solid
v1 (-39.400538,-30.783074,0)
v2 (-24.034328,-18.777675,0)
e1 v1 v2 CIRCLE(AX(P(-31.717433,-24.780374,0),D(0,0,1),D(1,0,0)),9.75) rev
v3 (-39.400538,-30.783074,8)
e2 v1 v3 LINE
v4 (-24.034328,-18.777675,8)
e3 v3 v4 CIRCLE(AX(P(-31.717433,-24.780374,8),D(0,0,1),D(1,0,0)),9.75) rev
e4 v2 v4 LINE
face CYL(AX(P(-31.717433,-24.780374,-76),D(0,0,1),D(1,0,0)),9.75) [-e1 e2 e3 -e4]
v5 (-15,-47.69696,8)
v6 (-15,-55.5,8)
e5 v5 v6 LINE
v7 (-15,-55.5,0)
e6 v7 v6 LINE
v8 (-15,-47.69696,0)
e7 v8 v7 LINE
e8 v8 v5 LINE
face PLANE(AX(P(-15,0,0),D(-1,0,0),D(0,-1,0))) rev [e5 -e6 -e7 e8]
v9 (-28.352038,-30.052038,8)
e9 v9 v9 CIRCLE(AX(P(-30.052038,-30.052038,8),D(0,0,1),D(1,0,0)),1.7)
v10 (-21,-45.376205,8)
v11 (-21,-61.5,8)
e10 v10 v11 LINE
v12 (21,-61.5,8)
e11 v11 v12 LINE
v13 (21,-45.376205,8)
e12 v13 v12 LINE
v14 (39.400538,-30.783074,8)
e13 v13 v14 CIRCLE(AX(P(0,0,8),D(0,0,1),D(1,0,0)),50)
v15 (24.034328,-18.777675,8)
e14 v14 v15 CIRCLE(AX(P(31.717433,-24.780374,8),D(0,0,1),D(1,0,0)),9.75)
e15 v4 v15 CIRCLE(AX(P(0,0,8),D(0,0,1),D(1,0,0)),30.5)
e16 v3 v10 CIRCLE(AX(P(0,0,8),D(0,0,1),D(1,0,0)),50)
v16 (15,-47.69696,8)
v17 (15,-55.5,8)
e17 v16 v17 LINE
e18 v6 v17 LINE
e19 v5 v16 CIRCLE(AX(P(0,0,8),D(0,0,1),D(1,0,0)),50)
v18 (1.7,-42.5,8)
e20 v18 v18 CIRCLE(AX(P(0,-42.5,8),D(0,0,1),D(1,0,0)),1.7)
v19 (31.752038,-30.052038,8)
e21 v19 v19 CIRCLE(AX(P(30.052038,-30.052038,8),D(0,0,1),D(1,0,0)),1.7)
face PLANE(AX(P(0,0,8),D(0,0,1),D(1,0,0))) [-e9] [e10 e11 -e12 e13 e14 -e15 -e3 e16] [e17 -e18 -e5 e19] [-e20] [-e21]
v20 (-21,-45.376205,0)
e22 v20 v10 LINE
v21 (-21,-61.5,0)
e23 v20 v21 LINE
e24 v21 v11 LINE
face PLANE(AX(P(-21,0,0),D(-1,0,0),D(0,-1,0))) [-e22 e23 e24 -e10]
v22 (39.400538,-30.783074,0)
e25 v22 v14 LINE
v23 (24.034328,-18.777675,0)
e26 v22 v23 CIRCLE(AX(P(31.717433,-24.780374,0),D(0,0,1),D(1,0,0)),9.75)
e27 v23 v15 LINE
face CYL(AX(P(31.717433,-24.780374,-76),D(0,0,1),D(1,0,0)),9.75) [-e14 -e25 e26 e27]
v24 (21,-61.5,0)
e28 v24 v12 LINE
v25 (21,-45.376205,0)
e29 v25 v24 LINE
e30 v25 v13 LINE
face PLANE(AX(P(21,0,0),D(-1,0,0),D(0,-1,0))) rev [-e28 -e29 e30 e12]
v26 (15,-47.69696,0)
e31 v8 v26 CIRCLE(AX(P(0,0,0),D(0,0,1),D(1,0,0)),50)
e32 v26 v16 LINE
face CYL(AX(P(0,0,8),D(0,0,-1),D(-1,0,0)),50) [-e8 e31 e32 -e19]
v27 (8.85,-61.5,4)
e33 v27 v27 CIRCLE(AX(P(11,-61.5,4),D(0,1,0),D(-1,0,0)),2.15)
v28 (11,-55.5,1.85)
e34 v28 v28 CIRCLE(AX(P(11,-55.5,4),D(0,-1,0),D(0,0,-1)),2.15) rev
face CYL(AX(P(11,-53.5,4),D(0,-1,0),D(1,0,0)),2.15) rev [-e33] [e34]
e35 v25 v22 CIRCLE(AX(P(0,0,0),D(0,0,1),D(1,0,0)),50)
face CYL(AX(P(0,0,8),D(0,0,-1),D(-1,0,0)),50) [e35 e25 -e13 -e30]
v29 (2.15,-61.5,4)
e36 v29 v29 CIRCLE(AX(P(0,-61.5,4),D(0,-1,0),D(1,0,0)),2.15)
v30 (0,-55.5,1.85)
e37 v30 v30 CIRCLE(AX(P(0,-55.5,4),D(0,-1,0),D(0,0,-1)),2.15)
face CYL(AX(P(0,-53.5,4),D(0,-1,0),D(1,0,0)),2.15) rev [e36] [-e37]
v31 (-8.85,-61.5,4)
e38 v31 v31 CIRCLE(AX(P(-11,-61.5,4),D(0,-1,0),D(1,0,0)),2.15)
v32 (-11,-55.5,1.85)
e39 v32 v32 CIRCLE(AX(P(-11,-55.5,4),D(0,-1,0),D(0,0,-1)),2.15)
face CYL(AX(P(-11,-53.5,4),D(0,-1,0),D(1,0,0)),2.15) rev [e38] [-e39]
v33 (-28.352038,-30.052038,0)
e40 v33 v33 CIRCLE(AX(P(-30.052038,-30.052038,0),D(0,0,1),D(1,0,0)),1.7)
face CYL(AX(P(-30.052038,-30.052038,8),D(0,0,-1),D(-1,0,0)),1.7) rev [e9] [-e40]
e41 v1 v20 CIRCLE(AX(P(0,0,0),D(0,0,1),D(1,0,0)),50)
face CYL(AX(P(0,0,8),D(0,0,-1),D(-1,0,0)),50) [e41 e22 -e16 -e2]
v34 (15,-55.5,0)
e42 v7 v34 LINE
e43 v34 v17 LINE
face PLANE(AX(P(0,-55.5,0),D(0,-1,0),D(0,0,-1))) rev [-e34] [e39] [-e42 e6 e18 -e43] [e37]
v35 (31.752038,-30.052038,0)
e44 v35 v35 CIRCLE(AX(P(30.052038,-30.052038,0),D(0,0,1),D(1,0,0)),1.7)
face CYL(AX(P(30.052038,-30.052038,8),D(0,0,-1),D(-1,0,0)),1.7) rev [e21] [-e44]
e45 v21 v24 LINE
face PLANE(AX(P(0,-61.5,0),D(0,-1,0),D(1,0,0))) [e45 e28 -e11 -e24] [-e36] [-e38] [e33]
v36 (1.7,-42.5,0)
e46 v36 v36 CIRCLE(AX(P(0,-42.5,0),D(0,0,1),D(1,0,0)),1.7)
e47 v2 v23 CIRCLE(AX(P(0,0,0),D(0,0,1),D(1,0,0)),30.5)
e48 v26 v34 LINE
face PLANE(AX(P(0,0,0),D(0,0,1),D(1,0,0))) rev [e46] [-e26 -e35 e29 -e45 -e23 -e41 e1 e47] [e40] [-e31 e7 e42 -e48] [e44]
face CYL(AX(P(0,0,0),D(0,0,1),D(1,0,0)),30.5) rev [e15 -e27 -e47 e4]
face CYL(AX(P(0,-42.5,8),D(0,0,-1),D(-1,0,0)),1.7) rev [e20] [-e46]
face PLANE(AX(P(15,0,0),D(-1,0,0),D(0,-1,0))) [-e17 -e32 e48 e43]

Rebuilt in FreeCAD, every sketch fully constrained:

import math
import FreeCAD as App
import Part
import Sketcher

V = App.Vector
Q = App.Units.Quantity

doc = App.newDocument("Part")
body = doc.addObject("PartDesign::Body", "Body")

# Sketch on XY plane
sketch1 = doc.addObject("Sketcher::SketchObject", "Sketch")
body.addObject(sketch1)
sketch1.AttachmentSupport = (doc.XY_Plane, [""])
sketch1.MapMode = "FlatFace"
sketch1.addGeometry([
    Part.Circle(V(0, 0, 0), V(0, 0, 1), 50),  # 0
    Part.Circle(V(-30.052038, -30.052038, 0), V(0, 0, 1), 1.7),  # 1
    Part.Circle(V(0, -42.5, 0), V(0, 0, 1), 1.7),  # 2
    Part.Circle(V(30.052038, -30.052038, 0), V(0, 0, 1), 1.7),  # 3
    Part.Circle(V(-42.5, 0, 0), V(0, 0, 1), 1.7),  # 4
    Part.Circle(V(-30.052038, 30.052038, 0), V(0, 0, 1), 1.7),  # 5
    Part.Circle(V(42.5, 0, 0), V(0, 0, 1), 1.7),  # 6
    Part.Circle(V(0, 42.5, 0), V(0, 0, 1), 1.7),  # 7
    Part.Circle(V(30.052038, 30.052038, 0), V(0, 0, 1), 1.7),  # 8
], False)
sketch1.addConstraint([
    Sketcher.Constraint("Coincident", 0, 3, -1, 1),
    Sketcher.Constraint("Equal", 1, 2),
    Sketcher.Constraint("Equal", 2, 3),
    Sketcher.Constraint("Equal", 3, 4),
    Sketcher.Constraint("Equal", 4, 5),
    Sketcher.Constraint("Equal", 5, 6),
    Sketcher.Constraint("Equal", 6, 7),
    Sketcher.Constraint("Equal", 7, 8),
    Sketcher.Constraint("Symmetric", 3, 3, 5, 3, -1, 1),
    Sketcher.Constraint("Symmetric", 4, 3, 6, 3, -1, 1),
    Sketcher.Constraint("Symmetric", 2, 3, 7, 3, -1, 1),
    Sketcher.Constraint("Symmetric", 1, 3, 8, 3, -1, 1),
    Sketcher.Constraint("Symmetric", 1, 3, 3, 3, -2),
    Sketcher.Constraint("PointOnObject", 2, 3, -2),
    Sketcher.Constraint("PointOnObject", 4, 3, -1),
    Sketcher.Constraint("Diameter", 0, Q("100 mm")),
    Sketcher.Constraint("Diameter", 1, Q("3.4 mm")),
    Sketcher.Constraint("DistanceY", 2, 3, -1, 1, Q("42.5 mm")),
    Sketcher.Constraint("DistanceX", 4, 3, -1, 1, Q("42.5 mm")),
    Sketcher.Constraint("DistanceX", 1, 3, -1, 1, Q("30.052038 mm")),
    Sketcher.Constraint("DistanceY", 1, 3, -1, 1, Q("30.052038 mm")),
])
pad1 = doc.addObject("PartDesign::Pad", "Pad")
body.addObject(pad1)
pad1.Profile = sketch1
pad1.Length = 8

# Sketch on XY plane
sketch2 = doc.addObject("Sketcher::SketchObject", "Sketch001")
body.addObject(sketch2)
sketch2.AttachmentSupport = (doc.XY_Plane, [""])
sketch2.MapMode = "FlatFace"
sketch2.AttachmentOffset = App.Placement(V(0, 0, 8), App.Rotation())
sketch2.addGeometry(Part.Circle(V(0, 0, 0), V(0, 0, 1), 30.5), False)
sketch2.addConstraint([
    Sketcher.Constraint("Coincident", 0, 3, -1, 1),
    Sketcher.Constraint("Diameter", 0, Q("61 mm")),
])
pocket1 = doc.addObject("PartDesign::Pocket", "Pocket")
body.addObject(pocket1)
pocket1.Profile = sketch2
pocket1.Length = 8

# Sketch on XY plane
sketch3 = doc.addObject("Sketcher::SketchObject", "Sketch002")
body.addObject(sketch3)
sketch3.AttachmentSupport = (doc.XY_Plane, [""])
sketch3.MapMode = "FlatFace"
sketch3.AttachmentOffset = App.Placement(V(0, 0, 8), App.Rotation())
sketch3.addGeometry([
    Part.ArcOfCircle(Part.Circle(V(-31.717433, -24.780374, 0), V(0, 0, 1), 9.75), math.radians(38.000001), math.radians(218.000005)),
    Part.ArcOfCircle(Part.Circle(V(0, 0, 0), V(0, 0, 1), 30.5), math.radians(-38), math.radians(218)),
    Part.ArcOfCircle(Part.Circle(V(31.717433, -24.780374, 0), V(0, 0, 1), 9.75), math.radians(-38.000005), math.radians(142)),
    Part.ArcOfCircle(Part.Circle(V(0, 0, 0), V(0, 0, 1), 50), math.radians(-38.000001), math.radians(218.000001)),
], False)
sketch3.addConstraint([
    Sketcher.Constraint("Tangent", 0, 1, 1, 2),
    Sketcher.Constraint("Tangent", 1, 1, 2, 2),
    Sketcher.Constraint("Tangent", 2, 1, 3, 1),
    Sketcher.Constraint("Tangent", 3, 2, 0, 2),
    Sketcher.Constraint("Coincident", 1, 3, -1, 1),
    Sketcher.Constraint("Coincident", 3, 3, -1, 1),
    Sketcher.Constraint("Horizontal", 0, 3, 2, 3),
    Sketcher.Constraint("Radius", 3, Q("50 mm")),
    Sketcher.Constraint("Radius", 1, Q("30.5 mm")),
    Sketcher.Constraint("DistanceY", 0, 3, 0, 1, Q("6.0027 mm")),
])
pocket2 = doc.addObject("PartDesign::Pocket", "Pocket001")
body.addObject(pocket2)
pocket2.Profile = sketch3
pocket2.Length = 84

# Sketch on XY plane
sketch4 = doc.addObject("Sketcher::SketchObject", "Sketch003")
body.addObject(sketch4)
sketch4.AttachmentSupport = (doc.XY_Plane, [""])
sketch4.MapMode = "FlatFace"
sketch4.addGeometry([
    Part.ArcOfCircle(Part.Circle(V(0, 0, 0), V(0, 0, 1), 50), math.radians(-114.834587), math.radians(-107.457603)),  # 0
    Part.LineSegment(V(-21, -45.376205, 0), V(-21, -61.5, 0)),  # 1
    Part.LineSegment(V(-21, -61.5, 0), V(21, -61.5, 0)),  # 2
    Part.LineSegment(V(21, -61.5, 0), V(21, -45.376205, 0)),  # 3
    Part.ArcOfCircle(Part.Circle(V(0, 0, 0), V(0, 0, 1), 50), math.radians(-72.542397), math.radians(-65.165413)),  # 4
    Part.LineSegment(V(15, -47.69696, 0), V(15, -55.5, 0)),  # 5
    Part.LineSegment(V(15, -55.5, 0), V(-15, -55.5, 0)),  # 6
    Part.LineSegment(V(-15, -55.5, 0), V(-15, -47.69696, 0)),  # 7
], False)
sketch4.addConstraint([
    Sketcher.Constraint("Coincident", 0, 1, 1, 1),
    Sketcher.Constraint("Coincident", 1, 2, 2, 1),
    Sketcher.Constraint("Coincident", 2, 2, 3, 1),
    Sketcher.Constraint("Coincident", 3, 2, 4, 2),
    Sketcher.Constraint("Coincident", 4, 1, 5, 1),
    Sketcher.Constraint("Coincident", 5, 2, 6, 1),
    Sketcher.Constraint("Coincident", 6, 2, 7, 1),
    Sketcher.Constraint("Coincident", 7, 2, 0, 2),
    Sketcher.Constraint("Vertical", 1),
    Sketcher.Constraint("Horizontal", 2),
    Sketcher.Constraint("Vertical", 3),
    Sketcher.Constraint("Vertical", 5),
    Sketcher.Constraint("Horizontal", 6),
    Sketcher.Constraint("Vertical", 7),
    Sketcher.Constraint("Coincident", 0, 3, -1, 1),
    Sketcher.Constraint("Coincident", 4, 3, -1, 1),
    Sketcher.Constraint("Equal", 0, 4),
    Sketcher.Constraint("Horizontal", 0, 1, 3, 2),
    Sketcher.Constraint("Horizontal", 4, 1, 7, 2),
    Sketcher.Constraint("Radius", 0, Q("50 mm")),
    Sketcher.Constraint("DistanceX", 2, 1, 2, 2, Q("42 mm")),
    Sketcher.Constraint("DistanceX", 6, 2, 6, 1, Q("30 mm")),
    Sketcher.Constraint("DistanceY", 2, 2, 5, 2, Q("6 mm")),
    Sketcher.Constraint("DistanceY", 1, 2, -1, 1, Q("61.5 mm")),
])
pad2 = doc.addObject("PartDesign::Pad", "Pad001")
body.addObject(pad2)
pad2.Profile = sketch4
pad2.Length = 8

# Sketch on XZ plane
sketch5 = doc.addObject("Sketcher::SketchObject", "Sketch004")
body.addObject(sketch5)
sketch5.AttachmentSupport = (doc.XZ_Plane, [""])
sketch5.MapMode = "FlatFace"
sketch5.AttachmentOffset = App.Placement(V(0, 0, 61.5), App.Rotation())
sketch5.addGeometry([
    Part.Circle(V(-11, 4, 0), V(0, 0, 1), 2.15),
    Part.Circle(V(0, 4, 0), V(0, 0, 1), 2.15),
    Part.Circle(V(11, 4, 0), V(0, 0, 1), 2.15),
], False)
sketch5.addConstraint([
    Sketcher.Constraint("Equal", 0, 1),
    Sketcher.Constraint("Equal", 1, 2),
    Sketcher.Constraint("Symmetric", 0, 3, 2, 3, -2),
    Sketcher.Constraint("PointOnObject", 1, 3, -2),
    Sketcher.Constraint("Horizontal", 0, 3, 1, 3),
    Sketcher.Constraint("Diameter", 0, Q("4.3 mm")),
    Sketcher.Constraint("DistanceX", 0, 3, -1, 1, Q("11 mm")),
    Sketcher.Constraint("DistanceY", -1, 1, 0, 3, Q("4 mm")),
])
pocket3 = doc.addObject("PartDesign::Pocket", "Pocket002")
body.addObject(pocket3)
pocket3.Profile = sketch5
pocket3.Length = 8

doc.recompute()
